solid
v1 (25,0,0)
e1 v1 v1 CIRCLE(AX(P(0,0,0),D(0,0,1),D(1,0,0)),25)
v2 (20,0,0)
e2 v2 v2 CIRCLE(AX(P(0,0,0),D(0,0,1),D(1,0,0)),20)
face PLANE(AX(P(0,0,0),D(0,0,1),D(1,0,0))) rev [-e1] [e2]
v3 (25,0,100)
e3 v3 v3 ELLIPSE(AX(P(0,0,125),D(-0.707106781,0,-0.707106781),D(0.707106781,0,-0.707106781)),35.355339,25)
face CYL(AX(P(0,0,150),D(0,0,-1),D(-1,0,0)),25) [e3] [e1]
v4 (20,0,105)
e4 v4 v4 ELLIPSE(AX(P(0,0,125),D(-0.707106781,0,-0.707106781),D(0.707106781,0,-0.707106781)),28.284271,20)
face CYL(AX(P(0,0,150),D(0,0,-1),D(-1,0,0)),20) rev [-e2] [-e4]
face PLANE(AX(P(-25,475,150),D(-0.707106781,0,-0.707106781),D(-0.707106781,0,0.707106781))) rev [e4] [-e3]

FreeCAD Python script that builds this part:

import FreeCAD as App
import Part
import Sketcher
Q = App.Units.Quantity

doc = App.newDocument("Part")
body = doc.addObject("PartDesign::Body", "Body")

# Sketch on XY plane
sketch1 = body.newObject("Sketcher::SketchObject", "Sketch")
sketch1.AttachmentSupport = (doc.getObject("XY_Plane"), [""])
sketch1.MapMode = "FlatFace"
sketch1.addGeometry([
    Part.Circle(App.Vector(0, 0, 0), App.Vector(0, 0, 1), 25),
    Part.Circle(App.Vector(0, 0, 0), App.Vector(0, 0, 1), 20),
], False)
sketch1.addConstraint([
    Sketcher.Constraint("Coincident", 0, 3, -1, 1),
    Sketcher.Constraint("Coincident", 1, 3, -1, 1),
    Sketcher.Constraint("Diameter", 0, Q("50 mm")),
    Sketcher.Constraint("Diameter", 1, Q("40 mm")),
])
pad1 = body.newObject("PartDesign::Pad", "Pad")
pad1.Profile = sketch1
pad1.Length = 150

# Sketch on XZ plane
sketch2 = body.newObject("Sketcher::SketchObject", "Sketch001")
sketch2.AttachmentSupport = (doc.getObject("XZ_Plane"), [""])
sketch2.MapMode = "FlatFace"
sketch2.AttachmentOffset = App.Placement(App.Vector(0, 0, 25), App.Rotation())
sketch2.addGeometry([
    Part.LineSegment(App.Vector(-25, 150, 0), App.Vector(25, 100, 0)),
    Part.LineSegment(App.Vector(25, 100, 0), App.Vector(25, 150, 0)),
    Part.LineSegment(App.Vector(25, 150, 0), App.Vector(-25, 150, 0)),
], False)
sketch2.addConstraint([
    Sketcher.Constraint("Coincident", 0, 2, 1, 1),
    Sketcher.Constraint("Coincident", 1, 2, 2, 1),
    Sketcher.Constraint("Coincident", 2, 2, 0, 1),
    Sketcher.Constraint("Vertical", 1),
    Sketcher.Constraint("Horizontal", 2),
    Sketcher.Constraint("Equal", 2, 1),
    Sketcher.Constraint("DistanceX", 2, 2, 2, 1, Q("50 mm")),
    Sketcher.Constraint("DistanceX", -1, 1, 0, 2, Q("25 mm")),
    Sketcher.Constraint("DistanceY", -1, 1, 0, 2, Q("100 mm")),
])
pocket1 = body.newObject("PartDesign::Pocket", "Pocket")
pocket1.Profile = sketch2
pocket1.Length = 500

doc.recompute()
